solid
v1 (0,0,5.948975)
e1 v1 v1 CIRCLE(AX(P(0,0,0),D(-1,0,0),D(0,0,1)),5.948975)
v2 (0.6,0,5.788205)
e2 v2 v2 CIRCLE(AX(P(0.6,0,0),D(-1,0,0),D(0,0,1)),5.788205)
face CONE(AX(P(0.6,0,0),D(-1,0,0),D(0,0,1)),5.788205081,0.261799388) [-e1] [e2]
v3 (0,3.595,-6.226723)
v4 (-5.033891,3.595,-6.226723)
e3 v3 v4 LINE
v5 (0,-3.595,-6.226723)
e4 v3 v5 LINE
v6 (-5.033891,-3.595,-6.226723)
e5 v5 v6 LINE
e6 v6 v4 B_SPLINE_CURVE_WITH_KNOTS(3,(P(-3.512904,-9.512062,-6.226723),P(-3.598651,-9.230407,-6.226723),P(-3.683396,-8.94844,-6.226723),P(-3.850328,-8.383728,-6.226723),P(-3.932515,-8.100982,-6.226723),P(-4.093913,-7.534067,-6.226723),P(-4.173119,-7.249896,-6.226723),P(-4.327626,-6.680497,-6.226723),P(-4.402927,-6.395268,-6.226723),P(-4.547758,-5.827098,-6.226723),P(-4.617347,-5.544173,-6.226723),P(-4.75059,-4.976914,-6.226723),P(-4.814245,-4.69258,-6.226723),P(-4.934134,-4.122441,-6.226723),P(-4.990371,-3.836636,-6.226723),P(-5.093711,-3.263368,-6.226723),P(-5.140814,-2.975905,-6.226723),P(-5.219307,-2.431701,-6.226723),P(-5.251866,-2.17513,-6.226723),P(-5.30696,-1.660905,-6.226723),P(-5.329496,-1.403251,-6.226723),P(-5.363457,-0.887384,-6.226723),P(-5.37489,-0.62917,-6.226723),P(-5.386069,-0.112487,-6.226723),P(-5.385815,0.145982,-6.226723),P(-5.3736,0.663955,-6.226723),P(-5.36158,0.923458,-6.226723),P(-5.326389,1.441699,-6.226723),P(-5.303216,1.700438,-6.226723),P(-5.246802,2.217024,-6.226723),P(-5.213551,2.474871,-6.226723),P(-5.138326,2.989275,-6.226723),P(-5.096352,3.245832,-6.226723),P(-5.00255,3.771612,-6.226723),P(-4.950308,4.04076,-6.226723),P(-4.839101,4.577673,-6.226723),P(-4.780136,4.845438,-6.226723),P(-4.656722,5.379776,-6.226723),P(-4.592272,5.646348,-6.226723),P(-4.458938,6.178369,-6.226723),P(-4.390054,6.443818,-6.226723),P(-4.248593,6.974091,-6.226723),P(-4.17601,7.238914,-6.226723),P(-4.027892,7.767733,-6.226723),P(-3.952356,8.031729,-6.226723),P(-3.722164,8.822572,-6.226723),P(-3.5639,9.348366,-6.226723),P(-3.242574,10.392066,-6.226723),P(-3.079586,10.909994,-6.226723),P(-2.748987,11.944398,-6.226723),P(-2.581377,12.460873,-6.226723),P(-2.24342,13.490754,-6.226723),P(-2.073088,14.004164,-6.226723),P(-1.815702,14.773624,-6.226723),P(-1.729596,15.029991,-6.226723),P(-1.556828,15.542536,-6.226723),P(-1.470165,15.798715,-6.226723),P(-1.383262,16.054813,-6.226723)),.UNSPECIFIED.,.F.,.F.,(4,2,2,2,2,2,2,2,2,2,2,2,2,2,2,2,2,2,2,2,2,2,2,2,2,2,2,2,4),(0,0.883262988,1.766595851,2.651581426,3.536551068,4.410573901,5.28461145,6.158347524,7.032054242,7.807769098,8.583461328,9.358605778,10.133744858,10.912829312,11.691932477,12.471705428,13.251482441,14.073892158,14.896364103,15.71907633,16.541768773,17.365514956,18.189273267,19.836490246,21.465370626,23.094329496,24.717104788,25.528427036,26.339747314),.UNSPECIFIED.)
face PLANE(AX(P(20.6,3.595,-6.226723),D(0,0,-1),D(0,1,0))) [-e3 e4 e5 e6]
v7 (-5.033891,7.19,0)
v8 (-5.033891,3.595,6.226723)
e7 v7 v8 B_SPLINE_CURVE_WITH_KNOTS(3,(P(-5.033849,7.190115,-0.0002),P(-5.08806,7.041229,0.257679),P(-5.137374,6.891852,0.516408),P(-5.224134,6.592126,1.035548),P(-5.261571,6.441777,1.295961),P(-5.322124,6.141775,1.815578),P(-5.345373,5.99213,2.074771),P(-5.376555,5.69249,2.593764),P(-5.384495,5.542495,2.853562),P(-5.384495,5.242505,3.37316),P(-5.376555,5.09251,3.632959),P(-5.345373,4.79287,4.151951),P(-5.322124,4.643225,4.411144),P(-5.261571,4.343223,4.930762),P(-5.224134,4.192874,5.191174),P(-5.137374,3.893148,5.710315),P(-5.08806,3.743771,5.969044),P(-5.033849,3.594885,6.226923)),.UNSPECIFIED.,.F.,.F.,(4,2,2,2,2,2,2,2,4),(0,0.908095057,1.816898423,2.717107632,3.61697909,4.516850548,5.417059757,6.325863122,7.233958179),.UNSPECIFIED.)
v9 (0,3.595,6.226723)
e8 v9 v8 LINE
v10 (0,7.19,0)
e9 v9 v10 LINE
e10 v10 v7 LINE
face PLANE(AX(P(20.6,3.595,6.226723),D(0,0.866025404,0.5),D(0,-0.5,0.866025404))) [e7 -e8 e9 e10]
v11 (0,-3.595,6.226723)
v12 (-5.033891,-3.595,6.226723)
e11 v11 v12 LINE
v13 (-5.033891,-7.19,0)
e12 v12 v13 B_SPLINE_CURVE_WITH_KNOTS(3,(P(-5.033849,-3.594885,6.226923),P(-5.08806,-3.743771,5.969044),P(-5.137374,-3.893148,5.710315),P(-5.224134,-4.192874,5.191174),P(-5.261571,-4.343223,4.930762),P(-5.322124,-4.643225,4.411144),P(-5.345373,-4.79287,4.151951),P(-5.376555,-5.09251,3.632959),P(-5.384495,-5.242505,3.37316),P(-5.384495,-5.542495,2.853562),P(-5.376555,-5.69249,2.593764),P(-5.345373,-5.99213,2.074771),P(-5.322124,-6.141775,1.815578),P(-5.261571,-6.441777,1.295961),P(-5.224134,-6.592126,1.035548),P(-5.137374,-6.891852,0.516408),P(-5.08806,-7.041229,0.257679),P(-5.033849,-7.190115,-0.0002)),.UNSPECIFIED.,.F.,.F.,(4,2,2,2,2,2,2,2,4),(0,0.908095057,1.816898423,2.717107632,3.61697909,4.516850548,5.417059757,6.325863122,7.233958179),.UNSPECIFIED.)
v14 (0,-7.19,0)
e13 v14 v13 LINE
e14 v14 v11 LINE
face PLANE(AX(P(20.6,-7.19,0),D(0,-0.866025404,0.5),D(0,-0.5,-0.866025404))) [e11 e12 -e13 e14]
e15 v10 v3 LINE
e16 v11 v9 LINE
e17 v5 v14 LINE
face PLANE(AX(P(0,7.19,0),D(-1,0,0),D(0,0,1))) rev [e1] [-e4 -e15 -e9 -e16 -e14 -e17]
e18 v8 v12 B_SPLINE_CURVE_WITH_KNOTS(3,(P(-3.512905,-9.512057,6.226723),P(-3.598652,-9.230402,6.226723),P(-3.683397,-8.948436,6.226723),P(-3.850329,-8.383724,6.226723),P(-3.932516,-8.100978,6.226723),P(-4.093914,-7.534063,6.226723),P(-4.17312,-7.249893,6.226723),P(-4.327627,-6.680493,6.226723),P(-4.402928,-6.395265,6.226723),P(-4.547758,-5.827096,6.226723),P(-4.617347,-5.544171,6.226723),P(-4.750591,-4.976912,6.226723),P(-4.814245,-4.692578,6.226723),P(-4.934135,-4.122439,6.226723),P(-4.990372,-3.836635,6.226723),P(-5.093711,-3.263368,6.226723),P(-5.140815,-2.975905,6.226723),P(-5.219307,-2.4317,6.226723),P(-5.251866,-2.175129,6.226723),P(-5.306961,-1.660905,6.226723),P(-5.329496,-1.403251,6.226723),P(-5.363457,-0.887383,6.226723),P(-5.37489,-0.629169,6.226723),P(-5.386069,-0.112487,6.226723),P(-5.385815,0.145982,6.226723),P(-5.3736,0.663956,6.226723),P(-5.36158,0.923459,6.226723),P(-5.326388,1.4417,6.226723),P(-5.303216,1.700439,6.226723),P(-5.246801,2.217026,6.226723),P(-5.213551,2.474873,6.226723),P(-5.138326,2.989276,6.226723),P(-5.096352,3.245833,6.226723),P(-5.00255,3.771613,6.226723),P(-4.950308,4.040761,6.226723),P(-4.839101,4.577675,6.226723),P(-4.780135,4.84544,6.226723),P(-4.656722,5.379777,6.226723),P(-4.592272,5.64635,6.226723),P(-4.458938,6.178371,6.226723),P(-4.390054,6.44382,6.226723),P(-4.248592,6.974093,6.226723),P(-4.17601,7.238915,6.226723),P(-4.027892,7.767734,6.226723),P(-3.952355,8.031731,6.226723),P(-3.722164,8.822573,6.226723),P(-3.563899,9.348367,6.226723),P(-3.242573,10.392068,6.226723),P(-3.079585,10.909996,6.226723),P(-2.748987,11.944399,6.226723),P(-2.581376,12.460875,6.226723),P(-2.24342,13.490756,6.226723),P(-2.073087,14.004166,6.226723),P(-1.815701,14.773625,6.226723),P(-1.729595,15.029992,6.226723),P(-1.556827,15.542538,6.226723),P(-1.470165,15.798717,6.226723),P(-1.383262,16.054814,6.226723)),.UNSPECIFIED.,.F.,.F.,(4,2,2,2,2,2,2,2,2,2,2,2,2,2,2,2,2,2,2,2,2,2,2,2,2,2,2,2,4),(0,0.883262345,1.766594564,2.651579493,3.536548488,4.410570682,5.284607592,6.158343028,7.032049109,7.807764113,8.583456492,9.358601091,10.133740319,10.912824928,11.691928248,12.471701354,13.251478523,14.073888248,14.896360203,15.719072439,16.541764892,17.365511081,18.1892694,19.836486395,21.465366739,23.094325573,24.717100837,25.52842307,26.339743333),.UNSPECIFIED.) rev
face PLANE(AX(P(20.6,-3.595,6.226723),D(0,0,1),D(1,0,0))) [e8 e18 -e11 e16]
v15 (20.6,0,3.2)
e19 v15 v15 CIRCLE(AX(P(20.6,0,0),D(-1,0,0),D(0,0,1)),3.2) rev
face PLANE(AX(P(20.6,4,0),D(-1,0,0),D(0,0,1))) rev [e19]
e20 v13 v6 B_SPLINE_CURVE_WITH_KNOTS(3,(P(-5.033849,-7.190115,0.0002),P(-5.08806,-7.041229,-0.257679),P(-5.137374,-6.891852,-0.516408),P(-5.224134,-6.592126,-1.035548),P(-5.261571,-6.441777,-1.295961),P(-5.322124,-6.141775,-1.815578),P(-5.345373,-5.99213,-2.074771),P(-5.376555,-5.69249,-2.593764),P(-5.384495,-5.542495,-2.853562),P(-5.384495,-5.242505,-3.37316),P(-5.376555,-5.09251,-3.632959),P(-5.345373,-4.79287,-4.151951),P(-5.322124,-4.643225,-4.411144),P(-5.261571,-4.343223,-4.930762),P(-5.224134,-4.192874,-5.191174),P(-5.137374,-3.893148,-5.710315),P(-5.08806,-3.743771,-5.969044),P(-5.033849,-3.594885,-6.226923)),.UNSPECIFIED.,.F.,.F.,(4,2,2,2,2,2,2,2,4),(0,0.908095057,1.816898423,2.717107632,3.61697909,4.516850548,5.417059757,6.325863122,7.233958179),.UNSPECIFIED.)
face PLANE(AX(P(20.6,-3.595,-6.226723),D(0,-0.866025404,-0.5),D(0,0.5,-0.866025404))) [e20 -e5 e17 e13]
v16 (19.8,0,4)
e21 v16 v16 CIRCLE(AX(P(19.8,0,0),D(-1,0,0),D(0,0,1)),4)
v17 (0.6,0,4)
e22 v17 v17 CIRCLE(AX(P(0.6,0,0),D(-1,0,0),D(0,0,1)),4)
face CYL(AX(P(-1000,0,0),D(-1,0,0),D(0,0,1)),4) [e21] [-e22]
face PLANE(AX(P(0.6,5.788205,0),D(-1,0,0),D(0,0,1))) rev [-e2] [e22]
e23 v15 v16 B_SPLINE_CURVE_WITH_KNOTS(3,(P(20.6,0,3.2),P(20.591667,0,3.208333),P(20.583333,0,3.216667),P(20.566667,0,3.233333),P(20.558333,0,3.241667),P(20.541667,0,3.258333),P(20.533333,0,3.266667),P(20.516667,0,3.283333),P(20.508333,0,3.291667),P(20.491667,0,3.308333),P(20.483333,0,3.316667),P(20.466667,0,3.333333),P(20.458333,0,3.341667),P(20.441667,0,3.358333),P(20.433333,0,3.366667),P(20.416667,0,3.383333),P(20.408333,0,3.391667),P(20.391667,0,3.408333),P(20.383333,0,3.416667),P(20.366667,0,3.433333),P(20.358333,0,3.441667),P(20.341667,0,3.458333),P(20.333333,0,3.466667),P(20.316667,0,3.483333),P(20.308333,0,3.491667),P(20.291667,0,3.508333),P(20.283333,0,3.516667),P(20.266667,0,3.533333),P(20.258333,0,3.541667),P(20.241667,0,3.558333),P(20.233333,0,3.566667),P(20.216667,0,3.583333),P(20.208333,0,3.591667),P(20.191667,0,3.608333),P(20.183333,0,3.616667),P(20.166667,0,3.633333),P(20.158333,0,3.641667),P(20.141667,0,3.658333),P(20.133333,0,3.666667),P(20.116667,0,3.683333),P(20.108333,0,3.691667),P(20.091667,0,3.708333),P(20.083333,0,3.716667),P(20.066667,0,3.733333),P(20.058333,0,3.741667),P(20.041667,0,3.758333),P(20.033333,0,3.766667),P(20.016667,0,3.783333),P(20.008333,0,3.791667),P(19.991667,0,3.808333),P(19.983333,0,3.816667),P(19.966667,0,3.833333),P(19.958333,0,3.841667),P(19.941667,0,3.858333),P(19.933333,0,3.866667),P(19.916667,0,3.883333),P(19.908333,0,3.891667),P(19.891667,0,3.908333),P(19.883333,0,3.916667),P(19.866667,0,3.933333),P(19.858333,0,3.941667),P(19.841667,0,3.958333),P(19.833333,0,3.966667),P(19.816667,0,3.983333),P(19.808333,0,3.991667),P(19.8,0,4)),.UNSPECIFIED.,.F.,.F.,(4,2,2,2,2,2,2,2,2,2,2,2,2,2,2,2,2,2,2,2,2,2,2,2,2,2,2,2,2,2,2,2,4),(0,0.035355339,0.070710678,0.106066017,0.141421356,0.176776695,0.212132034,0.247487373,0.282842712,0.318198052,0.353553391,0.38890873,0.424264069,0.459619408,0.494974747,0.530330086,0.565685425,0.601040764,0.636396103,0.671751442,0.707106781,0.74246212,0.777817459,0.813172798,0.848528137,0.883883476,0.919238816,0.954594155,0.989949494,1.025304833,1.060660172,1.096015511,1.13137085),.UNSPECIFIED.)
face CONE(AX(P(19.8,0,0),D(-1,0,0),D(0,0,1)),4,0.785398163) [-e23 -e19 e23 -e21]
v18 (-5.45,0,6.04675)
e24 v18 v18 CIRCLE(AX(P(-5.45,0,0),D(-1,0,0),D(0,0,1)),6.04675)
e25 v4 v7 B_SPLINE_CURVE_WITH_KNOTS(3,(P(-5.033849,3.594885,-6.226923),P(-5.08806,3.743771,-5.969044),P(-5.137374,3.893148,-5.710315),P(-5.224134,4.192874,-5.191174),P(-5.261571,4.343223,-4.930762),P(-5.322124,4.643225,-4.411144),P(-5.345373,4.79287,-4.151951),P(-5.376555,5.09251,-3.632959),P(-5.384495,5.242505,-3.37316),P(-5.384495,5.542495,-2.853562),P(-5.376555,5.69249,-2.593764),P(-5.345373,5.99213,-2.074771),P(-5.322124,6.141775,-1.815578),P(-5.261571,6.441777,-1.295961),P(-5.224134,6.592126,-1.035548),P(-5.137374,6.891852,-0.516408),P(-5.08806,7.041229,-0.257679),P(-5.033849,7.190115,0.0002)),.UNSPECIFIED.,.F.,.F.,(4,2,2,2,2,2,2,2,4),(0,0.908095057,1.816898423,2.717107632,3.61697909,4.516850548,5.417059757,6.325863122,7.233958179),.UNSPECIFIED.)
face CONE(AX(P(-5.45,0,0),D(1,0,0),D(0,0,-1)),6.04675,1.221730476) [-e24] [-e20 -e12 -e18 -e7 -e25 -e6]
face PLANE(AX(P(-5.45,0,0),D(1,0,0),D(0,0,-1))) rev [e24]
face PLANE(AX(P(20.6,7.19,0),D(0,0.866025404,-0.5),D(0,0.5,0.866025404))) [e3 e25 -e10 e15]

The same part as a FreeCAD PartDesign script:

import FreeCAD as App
import Part
import Sketcher
Q = App.Units.Quantity


def edges_at(feature, points):
    """Names of the edges that pass closest to the given points."""
    edges = feature.Shape.Edges
    near = lambda p: min(range(len(edges)), key=lambda i: edges[i].distToShape(Part.Vertex(*p))[0])
    return sorted({f"Edge{near(p) + 1}" for p in points})

doc = App.newDocument("Part")
body = doc.addObject("PartDesign::Body", "Body")

# Sketch on XY plane
sketch1 = doc.addObject("Sketcher::SketchObject", "Sketch")
body.addObject(sketch1)
sketch1.AttachmentSupport = (doc.XY_Plane, [""])
sketch1.MapMode = "FlatFace"
sketch1.addGeometry(Part.LineSegment(App.Vector(-5.5, 7.2, 0), App.Vector(-5.5, 0, 0)), False)
sketch1.addGeometry(Part.LineSegment(App.Vector(-5.5, 0, 0), App.Vector(20.6, 0, 0)), False)
sketch1.addGeometry(Part.LineSegment(App.Vector(20.6, 0, 0), App.Vector(20.6, 4, 0)), False)
sketch1.addGeometry(Part.LineSegment(App.Vector(20.6, 4, 0), App.Vector(0.6, 4, 0)), False)
sketch1.addGeometry(Part.LineSegment(App.Vector(0.6, 4, 0), App.Vector(0.6, 5.8, 0)), False)
sketch1.addGeometry(Part.LineSegment(App.Vector(0.6, 5.8, 0), App.Vector(0, 5.9, 0)), False)
sketch1.addGeometry(Part.LineSegment(App.Vector(0, 5.9, 0), App.Vector(0, 7.2, 0)), False)
sketch1.addGeometry(Part.LineSegment(App.Vector(0, 7.2, 0), App.Vector(-5.5, 7.2, 0)), False)
sketch1.addConstraint(Sketcher.Constraint("Coincident", 0, 2, 1, 1))
sketch1.addConstraint(Sketcher.Constraint("Coincident", 1, 2, 2, 1))
sketch1.addConstraint(Sketcher.Constraint("Coincident", 2, 2, 3, 1))
sketch1.addConstraint(Sketcher.Constraint("Coincident", 3, 2, 4, 1))
sketch1.addConstraint(Sketcher.Constraint("Coincident", 4, 2, 5, 1))
sketch1.addConstraint(Sketcher.Constraint("Coincident", 5, 2, 6, 1))
sketch1.addConstraint(Sketcher.Constraint("Coincident", 6, 2, 7, 1))
sketch1.addConstraint(Sketcher.Constraint("Coincident", 7, 2, 0, 1))
sketch1.addConstraint(Sketcher.Constraint("Vertical", 0))
sketch1.addConstraint(Sketcher.Constraint("Horizontal", 1))
sketch1.addConstraint(Sketcher.Constraint("Vertical", 2))
sketch1.addConstraint(Sketcher.Constraint("Horizontal", 3))
sketch1.addConstraint(Sketcher.Constraint("Vertical", 4))
sketch1.addConstraint(Sketcher.Constraint("Vertical", 6))
sketch1.addConstraint(Sketcher.Constraint("Horizontal", 7))
sketch1.addConstraint(Sketcher.Constraint("PointOnObject", 0, 2, -1))
sketch1.addConstraint(Sketcher.Constraint("PointOnObject", 5, 2, -2))
sketch1.addConstraint(Sketcher.Constraint("DistanceX", 3, 2, 3, 1, 20.0))
sketch1.addConstraint(Sketcher.Constraint("DistanceY", 2, 1, 2, 2, 4.0))
sketch1.addConstraint(Sketcher.Constraint("Angle", 5, Q("165 deg")))
sketch1.addConstraint(Sketcher.Constraint("DistanceX", 1, 1, 1, 2, 26.05))
sketch1.addConstraint(Sketcher.Constraint("DistanceX", 7, 2, 7, 1, 5.45))
sketch1.addConstraint(Sketcher.Constraint("DistanceY", 0, 2, 0, 1, 7.19))
sketch1.addConstraint(Sketcher.Constraint("DistanceY", 4, 1, 4, 2, 1.788205))
revolution = doc.addObject("PartDesign::Revolution", "Revolution")
body.addObject(revolution)
revolution.Profile = sketch1
revolution.ReferenceAxis = (sketch1, ["H_Axis"])
revolution.Angle = 360

# Sketch on YZ plane
sketch2 = doc.addObject("Sketcher::SketchObject", "Sketch001")
body.addObject(sketch2)
sketch2.AttachmentSupport = (doc.YZ_Plane, [""])
sketch2.MapMode = "FlatFace"
sketch2.AttachmentOffset = App.Placement(App.Vector(0, 0, -5.45), App.Rotation())
sketch2.addGeometry(Part.LineSegment(App.Vector(11, -11, 0), App.Vector(-11, -11, 0)), False)
sketch2.addGeometry(Part.LineSegment(App.Vector(-11, -11, 0), App.Vector(-11, 11, 0)), False)
sketch2.addGeometry(Part.LineSegment(App.Vector(-11, 11, 0), App.Vector(11, 11, 0)), False)
sketch2.addGeometry(Part.LineSegment(App.Vector(11, 11, 0), App.Vector(11, -11, 0)), False)
sketch2.addGeometry(Part.LineSegment(App.Vector(-4, 6, 0), App.Vector(-7, 0, 0)), False)
sketch2.addGeometry(Part.LineSegment(App.Vector(-7, 0, 0), App.Vector(-4, -6, 0)), False)
sketch2.addGeometry(Part.LineSegment(App.Vector(-4, -6, 0), App.Vector(4, -6, 0)), False)
sketch2.addGeometry(Part.LineSegment(App.Vector(4, -6, 0), App.Vector(7, 0, 0)), False)
sketch2.addGeometry(Part.LineSegment(App.Vector(7, 0, 0), App.Vector(4, 6, 0)), False)
sketch2.addGeometry(Part.LineSegment(App.Vector(4, 6, 0), App.Vector(-4, 6, 0)), False)
sketch2.addConstraint(Sketcher.Constraint("Coincident", 0, 2, 1, 1))
sketch2.addConstraint(Sketcher.Constraint("Coincident", 1, 2, 2, 1))
sketch2.addConstraint(Sketcher.Constraint("Coincident", 2, 2, 3, 1))
sketch2.addConstraint(Sketcher.Constraint("Coincident", 3, 2, 0, 1))
sketch2.addConstraint(Sketcher.Constraint("Coincident", 4, 2, 5, 1))
sketch2.addConstraint(Sketcher.Constraint("Coincident", 5, 2, 6, 1))
sketch2.addConstraint(Sketcher.Constraint("Coincident", 6, 2, 7, 1))
sketch2.addConstraint(Sketcher.Constraint("Coincident", 7, 2, 8, 1))
sketch2.addConstraint(Sketcher.Constraint("Coincident", 8, 2, 9, 1))
sketch2.addConstraint(Sketcher.Constraint("Coincident", 9, 2, 4, 1))
sketch2.addConstraint(Sketcher.Constraint("Horizontal", 0))
sketch2.addConstraint(Sketcher.Constraint("Vertical", 1))
sketch2.addConstraint(Sketcher.Constraint("Horizontal", 2))
sketch2.addConstraint(Sketcher.Constraint("Vertical", 3))
sketch2.addConstraint(Sketcher.Constraint("Horizontal", 6))
sketch2.addConstraint(Sketcher.Constraint("Horizontal", 9))
sketch2.addConstraint(Sketcher.Constraint("Symmetric", 0, 2, 2, 2, -1, 1))
sketch2.addConstraint(Sketcher.Constraint("Symmetric", 4, 2, 7, 2, -1, 1))
sketch2.addConstraint(Sketcher.Constraint("Symmetric", 5, 2, 8, 2, -1, 1))
sketch2.addConstraint(Sketcher.Constraint("PointOnObject", 4, 2, -1))
sketch2.addConstraint(Sketcher.Constraint("Parallel", 4, 7))
sketch2.addConstraint(Sketcher.Constraint("Vertical", 6, 2, 8, 2))
sketch2.addConstraint(Sketcher.Constraint("Equal", 2, 1))
sketch2.addConstraint(Sketcher.Constraint("Angle", 4, Q("-120 deg")))
sketch2.addConstraint(Sketcher.Constraint("DistanceX", 0, 2, 0, 1, 22.99))
sketch2.addConstraint(Sketcher.Constraint("DistanceX", 6, 1, 6, 2, 7.19))
sketch2.addConstraint(Sketcher.Constraint("Distance", 4, 7.19))
pocket1 = doc.addObject("PartDesign::Pocket", "Pocket")
body.addObject(pocket1)
pocket1.Profile = sketch2
pocket1.Type = "ThroughAll"
pocket1.Reversed = True

# Sketch on XY plane
sketch3 = doc.addObject("Sketcher::SketchObject", "Sketch002")
body.addObject(sketch3)
sketch3.AttachmentSupport = (doc.XY_Plane, [""])
sketch3.MapMode = "FlatFace"
sketch3.addGeometry(Part.LineSegment(App.Vector(-5.45, 6.05, 0), App.Vector(-5.03, 7.19, 0)), False)
sketch3.addGeometry(Part.LineSegment(App.Vector(-5.03, 7.19, 0), App.Vector(-5.45, 7.19, 0)), False)
sketch3.addGeometry(Part.LineSegment(App.Vector(-5.45, 7.19, 0), App.Vector(-5.45, 6.05, 0)), False)
sketch3.addConstraint(Sketcher.Constraint("Coincident", 0, 2, 1, 1))
sketch3.addConstraint(Sketcher.Constraint("Coincident", 1, 2, 2, 1))
sketch3.addConstraint(Sketcher.Constraint("Coincident", 2, 2, 0, 1))
sketch3.addConstraint(Sketcher.Constraint("Horizontal", 1))
sketch3.addConstraint(Sketcher.Constraint("Vertical", 2))
sketch3.addConstraint(Sketcher.Constraint("Angle", 0, Q("70 deg")))
sketch3.addConstraint(Sketcher.Constraint("DistanceY", -1, 1, 0, 2, 7.19))
sketch3.addConstraint(Sketcher.Constraint("DistanceX", 1, 2, -1, 1, 5.45))
sketch3.addConstraint(Sketcher.Constraint("DistanceX", 1, 2, 1, 1, 0.416109))
groove = doc.addObject("PartDesign::Groove", "Groove")
body.addObject(groove)
groove.Profile = sketch3
groove.ReferenceAxis = (sketch3, ["H_Axis"])
groove.Angle = 360
doc.recompute()

chamfer = doc.addObject("PartDesign::Chamfer", "Chamfer")
body.addObject(chamfer)
chamfer.Base = (groove, edges_at(groove, [(20.6, 0, -4)]))
chamfer.Size = 0.8

doc.recompute()
